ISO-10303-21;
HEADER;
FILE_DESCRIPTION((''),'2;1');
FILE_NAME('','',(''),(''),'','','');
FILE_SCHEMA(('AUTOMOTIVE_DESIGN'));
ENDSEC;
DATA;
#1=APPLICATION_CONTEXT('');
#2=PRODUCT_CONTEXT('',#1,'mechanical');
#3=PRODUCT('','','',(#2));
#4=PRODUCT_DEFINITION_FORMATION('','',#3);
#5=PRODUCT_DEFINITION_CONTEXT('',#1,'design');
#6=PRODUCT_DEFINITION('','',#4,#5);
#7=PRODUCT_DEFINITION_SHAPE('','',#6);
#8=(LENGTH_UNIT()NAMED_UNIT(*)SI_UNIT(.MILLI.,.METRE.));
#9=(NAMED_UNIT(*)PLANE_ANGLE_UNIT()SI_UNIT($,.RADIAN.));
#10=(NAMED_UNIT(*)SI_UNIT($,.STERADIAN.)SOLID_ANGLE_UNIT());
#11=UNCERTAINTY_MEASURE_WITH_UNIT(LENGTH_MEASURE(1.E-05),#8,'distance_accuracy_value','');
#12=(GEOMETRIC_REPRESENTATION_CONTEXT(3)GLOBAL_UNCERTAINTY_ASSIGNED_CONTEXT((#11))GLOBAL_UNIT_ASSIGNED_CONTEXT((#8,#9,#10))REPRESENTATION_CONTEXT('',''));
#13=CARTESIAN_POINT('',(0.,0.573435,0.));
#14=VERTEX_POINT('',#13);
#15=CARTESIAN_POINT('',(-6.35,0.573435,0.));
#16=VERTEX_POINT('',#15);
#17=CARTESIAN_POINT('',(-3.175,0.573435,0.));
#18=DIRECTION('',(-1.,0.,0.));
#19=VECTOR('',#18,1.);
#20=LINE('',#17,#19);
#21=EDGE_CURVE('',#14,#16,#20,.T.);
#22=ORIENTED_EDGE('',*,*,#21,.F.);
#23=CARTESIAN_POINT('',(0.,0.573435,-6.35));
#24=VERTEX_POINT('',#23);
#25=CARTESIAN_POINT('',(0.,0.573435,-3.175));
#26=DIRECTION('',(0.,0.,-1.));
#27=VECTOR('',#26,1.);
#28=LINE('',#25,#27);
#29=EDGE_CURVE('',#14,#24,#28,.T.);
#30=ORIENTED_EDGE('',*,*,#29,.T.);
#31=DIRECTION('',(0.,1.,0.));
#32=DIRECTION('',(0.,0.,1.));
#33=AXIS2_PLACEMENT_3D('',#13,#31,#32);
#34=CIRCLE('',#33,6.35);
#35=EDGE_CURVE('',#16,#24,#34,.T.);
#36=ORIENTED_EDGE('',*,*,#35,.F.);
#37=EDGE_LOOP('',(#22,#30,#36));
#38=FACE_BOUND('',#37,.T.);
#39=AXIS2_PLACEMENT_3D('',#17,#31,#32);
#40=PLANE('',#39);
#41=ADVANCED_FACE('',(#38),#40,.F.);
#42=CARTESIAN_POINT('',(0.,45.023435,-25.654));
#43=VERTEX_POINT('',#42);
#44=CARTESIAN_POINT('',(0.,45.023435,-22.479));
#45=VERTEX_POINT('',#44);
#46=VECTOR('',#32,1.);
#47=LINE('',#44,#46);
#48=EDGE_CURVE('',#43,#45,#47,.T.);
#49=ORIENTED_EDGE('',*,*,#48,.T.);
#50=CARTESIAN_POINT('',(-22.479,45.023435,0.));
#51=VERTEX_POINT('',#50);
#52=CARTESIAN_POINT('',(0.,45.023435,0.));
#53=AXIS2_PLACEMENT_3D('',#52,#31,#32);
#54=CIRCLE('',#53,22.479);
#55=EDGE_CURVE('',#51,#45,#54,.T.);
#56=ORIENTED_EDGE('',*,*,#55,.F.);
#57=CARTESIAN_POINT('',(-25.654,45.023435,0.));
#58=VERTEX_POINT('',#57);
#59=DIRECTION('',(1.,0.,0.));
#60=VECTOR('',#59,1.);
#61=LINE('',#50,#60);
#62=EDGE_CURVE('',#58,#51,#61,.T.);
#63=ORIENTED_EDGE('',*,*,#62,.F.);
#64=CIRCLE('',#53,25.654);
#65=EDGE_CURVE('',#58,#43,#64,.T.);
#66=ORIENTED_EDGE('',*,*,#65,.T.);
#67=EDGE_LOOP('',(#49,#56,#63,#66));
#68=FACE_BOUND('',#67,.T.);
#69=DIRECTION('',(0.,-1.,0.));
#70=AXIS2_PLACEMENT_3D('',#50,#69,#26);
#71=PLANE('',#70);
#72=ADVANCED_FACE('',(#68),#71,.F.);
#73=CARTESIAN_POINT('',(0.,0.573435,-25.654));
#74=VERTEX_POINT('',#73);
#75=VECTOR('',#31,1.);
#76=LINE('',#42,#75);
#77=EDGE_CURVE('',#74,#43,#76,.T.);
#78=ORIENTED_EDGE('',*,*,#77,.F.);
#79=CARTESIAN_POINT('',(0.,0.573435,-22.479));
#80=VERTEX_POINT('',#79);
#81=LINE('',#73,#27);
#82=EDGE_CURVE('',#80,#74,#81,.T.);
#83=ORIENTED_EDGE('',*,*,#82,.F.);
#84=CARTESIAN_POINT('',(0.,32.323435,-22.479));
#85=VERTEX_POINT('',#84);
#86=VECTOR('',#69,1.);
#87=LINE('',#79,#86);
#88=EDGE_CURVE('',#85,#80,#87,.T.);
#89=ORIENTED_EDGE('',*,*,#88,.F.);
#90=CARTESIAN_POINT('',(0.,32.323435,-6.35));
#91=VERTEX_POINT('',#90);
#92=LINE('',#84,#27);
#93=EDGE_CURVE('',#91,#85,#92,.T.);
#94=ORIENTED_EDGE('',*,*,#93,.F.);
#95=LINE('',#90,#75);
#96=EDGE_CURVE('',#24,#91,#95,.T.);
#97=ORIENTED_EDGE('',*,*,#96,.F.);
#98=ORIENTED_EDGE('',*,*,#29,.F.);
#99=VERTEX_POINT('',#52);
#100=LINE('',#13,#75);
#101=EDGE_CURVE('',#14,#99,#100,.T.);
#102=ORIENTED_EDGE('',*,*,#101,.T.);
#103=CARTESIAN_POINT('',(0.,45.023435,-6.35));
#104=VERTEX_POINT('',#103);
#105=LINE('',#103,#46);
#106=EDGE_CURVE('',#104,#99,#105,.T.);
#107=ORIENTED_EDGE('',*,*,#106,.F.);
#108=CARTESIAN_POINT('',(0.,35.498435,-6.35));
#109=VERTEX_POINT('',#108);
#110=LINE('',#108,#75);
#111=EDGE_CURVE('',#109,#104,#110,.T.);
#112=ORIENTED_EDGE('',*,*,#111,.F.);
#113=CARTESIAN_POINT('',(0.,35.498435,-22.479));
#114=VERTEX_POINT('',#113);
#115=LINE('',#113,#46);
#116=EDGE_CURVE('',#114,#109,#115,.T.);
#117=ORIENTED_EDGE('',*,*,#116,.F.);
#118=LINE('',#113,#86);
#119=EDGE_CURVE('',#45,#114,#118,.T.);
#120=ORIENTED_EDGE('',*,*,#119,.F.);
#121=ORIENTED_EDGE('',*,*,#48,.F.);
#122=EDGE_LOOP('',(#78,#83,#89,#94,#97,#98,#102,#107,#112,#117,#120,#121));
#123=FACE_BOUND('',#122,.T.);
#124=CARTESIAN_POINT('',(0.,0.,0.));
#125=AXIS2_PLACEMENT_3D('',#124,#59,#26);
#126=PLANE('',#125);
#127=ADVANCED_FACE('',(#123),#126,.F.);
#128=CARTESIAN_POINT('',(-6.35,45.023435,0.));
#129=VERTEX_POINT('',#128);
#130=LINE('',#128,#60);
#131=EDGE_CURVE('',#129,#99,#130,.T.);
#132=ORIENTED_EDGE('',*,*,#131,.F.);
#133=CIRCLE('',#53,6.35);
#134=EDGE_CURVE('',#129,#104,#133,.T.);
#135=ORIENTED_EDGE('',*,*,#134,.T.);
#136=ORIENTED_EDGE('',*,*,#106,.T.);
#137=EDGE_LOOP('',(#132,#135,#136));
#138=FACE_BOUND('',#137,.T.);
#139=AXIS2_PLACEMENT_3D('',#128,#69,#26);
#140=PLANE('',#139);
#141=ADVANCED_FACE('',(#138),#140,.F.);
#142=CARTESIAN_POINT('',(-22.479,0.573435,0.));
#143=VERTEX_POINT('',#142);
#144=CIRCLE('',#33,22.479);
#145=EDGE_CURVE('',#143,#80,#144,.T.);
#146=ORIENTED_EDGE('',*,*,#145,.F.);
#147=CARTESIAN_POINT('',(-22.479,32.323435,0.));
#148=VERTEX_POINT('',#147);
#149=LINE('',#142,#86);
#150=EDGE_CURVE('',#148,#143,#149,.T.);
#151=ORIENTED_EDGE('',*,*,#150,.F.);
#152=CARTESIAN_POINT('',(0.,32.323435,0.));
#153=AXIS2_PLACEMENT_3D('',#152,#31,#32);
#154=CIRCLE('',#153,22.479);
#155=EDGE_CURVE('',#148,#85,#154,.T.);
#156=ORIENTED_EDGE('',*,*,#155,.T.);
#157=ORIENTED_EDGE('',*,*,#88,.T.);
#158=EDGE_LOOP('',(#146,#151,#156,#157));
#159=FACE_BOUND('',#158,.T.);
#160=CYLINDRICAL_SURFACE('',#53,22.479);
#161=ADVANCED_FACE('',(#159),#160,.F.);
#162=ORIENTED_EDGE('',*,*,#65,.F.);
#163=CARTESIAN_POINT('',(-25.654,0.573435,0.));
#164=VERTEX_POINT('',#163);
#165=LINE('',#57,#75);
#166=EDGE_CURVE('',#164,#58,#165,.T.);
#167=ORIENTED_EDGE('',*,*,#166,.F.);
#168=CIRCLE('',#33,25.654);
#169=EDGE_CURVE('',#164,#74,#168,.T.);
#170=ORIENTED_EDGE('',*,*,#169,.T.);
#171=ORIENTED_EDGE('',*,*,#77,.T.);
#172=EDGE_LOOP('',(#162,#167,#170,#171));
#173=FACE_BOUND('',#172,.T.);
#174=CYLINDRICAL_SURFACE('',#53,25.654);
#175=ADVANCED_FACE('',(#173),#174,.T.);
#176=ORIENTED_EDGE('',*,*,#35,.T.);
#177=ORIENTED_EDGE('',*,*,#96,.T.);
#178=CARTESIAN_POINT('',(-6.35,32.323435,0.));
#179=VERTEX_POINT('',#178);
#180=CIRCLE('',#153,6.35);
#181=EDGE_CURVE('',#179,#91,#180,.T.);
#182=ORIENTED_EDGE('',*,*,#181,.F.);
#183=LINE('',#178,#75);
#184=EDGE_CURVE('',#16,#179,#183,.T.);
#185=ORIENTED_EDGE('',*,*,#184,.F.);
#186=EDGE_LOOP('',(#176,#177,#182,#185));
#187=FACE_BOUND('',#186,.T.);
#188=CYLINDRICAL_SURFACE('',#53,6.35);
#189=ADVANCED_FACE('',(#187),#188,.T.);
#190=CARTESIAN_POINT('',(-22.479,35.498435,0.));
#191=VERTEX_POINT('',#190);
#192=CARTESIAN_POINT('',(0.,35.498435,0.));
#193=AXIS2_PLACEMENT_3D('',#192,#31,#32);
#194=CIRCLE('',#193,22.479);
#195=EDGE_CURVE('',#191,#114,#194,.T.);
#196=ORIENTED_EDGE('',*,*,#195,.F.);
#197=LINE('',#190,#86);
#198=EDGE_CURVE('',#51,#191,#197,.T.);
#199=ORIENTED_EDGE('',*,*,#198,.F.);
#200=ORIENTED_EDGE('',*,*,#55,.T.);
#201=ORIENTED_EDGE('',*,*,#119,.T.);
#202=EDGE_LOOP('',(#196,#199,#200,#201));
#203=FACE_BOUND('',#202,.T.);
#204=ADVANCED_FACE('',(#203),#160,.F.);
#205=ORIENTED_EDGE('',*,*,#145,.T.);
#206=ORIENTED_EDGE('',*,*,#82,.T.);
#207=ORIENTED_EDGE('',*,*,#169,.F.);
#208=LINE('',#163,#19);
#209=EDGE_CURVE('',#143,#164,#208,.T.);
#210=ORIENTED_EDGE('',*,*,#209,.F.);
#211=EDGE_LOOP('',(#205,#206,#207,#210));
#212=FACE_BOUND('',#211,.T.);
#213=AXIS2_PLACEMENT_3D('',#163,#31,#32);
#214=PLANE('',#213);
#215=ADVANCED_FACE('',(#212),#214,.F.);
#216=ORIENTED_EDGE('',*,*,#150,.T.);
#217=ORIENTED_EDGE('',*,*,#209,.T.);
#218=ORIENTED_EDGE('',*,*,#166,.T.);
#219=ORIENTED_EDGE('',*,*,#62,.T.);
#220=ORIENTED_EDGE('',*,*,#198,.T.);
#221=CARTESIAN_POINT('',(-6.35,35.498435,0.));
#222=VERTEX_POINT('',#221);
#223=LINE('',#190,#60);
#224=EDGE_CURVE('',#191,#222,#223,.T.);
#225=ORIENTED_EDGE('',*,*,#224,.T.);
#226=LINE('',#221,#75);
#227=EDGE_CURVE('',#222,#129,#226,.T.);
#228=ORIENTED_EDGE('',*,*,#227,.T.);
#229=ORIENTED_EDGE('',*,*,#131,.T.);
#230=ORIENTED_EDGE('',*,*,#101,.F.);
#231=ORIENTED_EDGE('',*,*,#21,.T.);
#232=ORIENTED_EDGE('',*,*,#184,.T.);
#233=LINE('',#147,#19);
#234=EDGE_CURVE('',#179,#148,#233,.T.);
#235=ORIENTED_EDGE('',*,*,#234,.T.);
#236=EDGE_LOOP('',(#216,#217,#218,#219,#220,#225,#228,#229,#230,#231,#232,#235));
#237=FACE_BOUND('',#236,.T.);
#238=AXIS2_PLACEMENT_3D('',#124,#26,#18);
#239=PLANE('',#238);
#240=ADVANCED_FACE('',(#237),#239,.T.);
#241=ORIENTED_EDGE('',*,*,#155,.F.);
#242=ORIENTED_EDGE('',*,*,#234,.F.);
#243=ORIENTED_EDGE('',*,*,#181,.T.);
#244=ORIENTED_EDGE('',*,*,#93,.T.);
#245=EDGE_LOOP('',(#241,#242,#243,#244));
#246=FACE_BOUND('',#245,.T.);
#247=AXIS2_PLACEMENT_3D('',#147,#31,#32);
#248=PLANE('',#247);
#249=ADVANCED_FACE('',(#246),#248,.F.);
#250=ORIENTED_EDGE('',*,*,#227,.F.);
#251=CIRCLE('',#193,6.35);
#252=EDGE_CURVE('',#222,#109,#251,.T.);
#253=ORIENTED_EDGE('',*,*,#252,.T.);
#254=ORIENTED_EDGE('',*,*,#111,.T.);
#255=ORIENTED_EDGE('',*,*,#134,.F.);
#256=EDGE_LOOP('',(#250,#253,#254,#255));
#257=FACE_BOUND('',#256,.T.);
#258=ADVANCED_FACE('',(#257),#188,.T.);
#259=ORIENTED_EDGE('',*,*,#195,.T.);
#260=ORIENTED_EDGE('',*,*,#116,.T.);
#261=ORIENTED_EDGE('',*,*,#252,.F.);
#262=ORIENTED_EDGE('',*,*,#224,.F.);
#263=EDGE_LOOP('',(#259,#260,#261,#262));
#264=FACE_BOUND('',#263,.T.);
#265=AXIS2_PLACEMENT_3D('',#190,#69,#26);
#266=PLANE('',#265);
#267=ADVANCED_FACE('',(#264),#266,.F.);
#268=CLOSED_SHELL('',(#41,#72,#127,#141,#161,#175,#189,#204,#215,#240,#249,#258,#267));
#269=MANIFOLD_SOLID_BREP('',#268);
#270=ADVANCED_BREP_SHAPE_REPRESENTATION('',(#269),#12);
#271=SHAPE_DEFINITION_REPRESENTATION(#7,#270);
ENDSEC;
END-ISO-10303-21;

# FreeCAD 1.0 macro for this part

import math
import FreeCAD as App
import Part
import Sketcher

V = App.Vector
Q = App.Units.Quantity

doc = App.newDocument("Part")
params = doc.addObject("Spreadsheet::Sheet", "Params")
for row, (alias, value) in enumerate([
    ("sketch1_width", "1.75 in"),
    ("sketch1_width2", "1.25 in"),
    ("sketch1_width3", "0.375 in"),
    ("sketch1_height", "0.635 in"),
    ("sketch1_height2", "0.125 in"),
    ("revolution_angle", "270 deg"),
    ("sketch2_radius", "0.25 in"),
    ("pad1_length", "1.75 in"),
], start=1):
    params.set(f"A{row}", alias)
    params.set(f"B{row}", "=" + value)
    params.setAlias(f"B{row}", alias)

body = doc.addObject("PartDesign::Body", "Body")

sketch1 = doc.addObject("Sketcher::SketchObject", "Sketch")
body.addObject(sketch1)
sketch1.AttachmentSupport = (doc.YZ_Plane, [""])
sketch1.MapMode = "FlatFace"
sketch1.addGeometry(Part.LineSegment(V(45, -22.5, 0), V(35.5, -22.5, 0)), False)
sketch1.addGeometry(Part.LineSegment(V(35.5, -22.5, 0), V(35.5, -6.3, 0)), False)
sketch1.addGeometry(Part.LineSegment(V(35.5, -6.3, 0), V(45, -6.3, 0)), False)
sketch1.addGeometry(Part.LineSegment(V(45, -6.3, 0), V(45, -3.2, 0)), False)
sketch1.addGeometry(Part.LineSegment(V(45, -3.2, 0), V(0.6, -3.2, 0)), False)
sketch1.addGeometry(Part.LineSegment(V(0.6, -3.2, 0), V(0.6, -6.3, 0)), False)
sketch1.addGeometry(Part.LineSegment(V(0.6, -6.3, 0), V(32.3, -6.3, 0)), False)
sketch1.addGeometry(Part.LineSegment(V(32.3, -6.3, 0), V(32.3, -22.5, 0)), False)
sketch1.addGeometry(Part.LineSegment(V(32.3, -22.5, 0), V(0.6, -22.5, 0)), False)
sketch1.addGeometry(Part.LineSegment(V(0.6, -22.5, 0), V(0.6, -25.7, 0)), False)
sketch1.addGeometry(Part.LineSegment(V(0.6, -25.7, 0), V(45, -25.7, 0)), False)
sketch1.addGeometry(Part.LineSegment(V(45, -25.7, 0), V(45, -22.5, 0)), False)
sketch1.addConstraint(Sketcher.Constraint("Coincident", 0, 2, 1, 1))
sketch1.addConstraint(Sketcher.Constraint("Coincident", 1, 2, 2, 1))
sketch1.addConstraint(Sketcher.Constraint("Coincident", 2, 2, 3, 1))
sketch1.addConstraint(Sketcher.Constraint("Coincident", 3, 2, 4, 1))
sketch1.addConstraint(Sketcher.Constraint("Coincident", 4, 2, 5, 1))
sketch1.addConstraint(Sketcher.Constraint("Coincident", 5, 2, 6, 1))
sketch1.addConstraint(Sketcher.Constraint("Coincident", 6, 2, 7, 1))
sketch1.addConstraint(Sketcher.Constraint("Coincident", 7, 2, 8, 1))
sketch1.addConstraint(Sketcher.Constraint("Coincident", 8, 2, 9, 1))
sketch1.addConstraint(Sketcher.Constraint("Coincident", 9, 2, 10, 1))
sketch1.addConstraint(Sketcher.Constraint("Coincident", 10, 2, 11, 1))
sketch1.addConstraint(Sketcher.Constraint("Coincident", 11, 2, 0, 1))
sketch1.addConstraint(Sketcher.Constraint("Horizontal", 0))
sketch1.addConstraint(Sketcher.Constraint("Vertical", 1))
sketch1.addConstraint(Sketcher.Constraint("Horizontal", 2))
sketch1.addConstraint(Sketcher.Constraint("Vertical", 3))
sketch1.addConstraint(Sketcher.Constraint("Horizontal", 4))
sketch1.addConstraint(Sketcher.Constraint("Vertical", 5))
sketch1.addConstraint(Sketcher.Constraint("Horizontal", 6))
sketch1.addConstraint(Sketcher.Constraint("Vertical", 7))
sketch1.addConstraint(Sketcher.Constraint("Horizontal", 8))
sketch1.addConstraint(Sketcher.Constraint("Vertical", 9))
sketch1.addConstraint(Sketcher.Constraint("Horizontal", 10))
sketch1.addConstraint(Sketcher.Constraint("Vertical", 11))
sketch1.addConstraint(Sketcher.Constraint("Horizontal", 2, 2, 5, 2))
sketch1.addConstraint(Sketcher.Constraint("Horizontal", 0, 2, 7, 2))
sketch1.addConstraint(Sketcher.Constraint("Vertical", 5, 2, 8, 2))
sketch1.addConstraint(Sketcher.Constraint("Vertical", 3, 2, 10, 2))
sketch1.addConstraint(Sketcher.Constraint("Equal", 5, 9))
sketch1.addConstraint(Sketcher.Constraint("DistanceX", 4, 2, 4, 1, Q("1.75 in")))
sketch1.addConstraint(Sketcher.Constraint("DistanceX", 6, 1, 6, 2, Q("1.25 in")))
sketch1.addConstraint(Sketcher.Constraint("DistanceX", 0, 2, 0, 1, Q("0.375 in")))
sketch1.addConstraint(Sketcher.Constraint("DistanceY", 1, 1, 1, 2, Q("0.635 in")))
sketch1.addConstraint(Sketcher.Constraint("DistanceY", 3, 1, 3, 2, Q("0.125 in")))
sketch1.addConstraint(Sketcher.Constraint("DistanceY", 1, 2, -1, 1, Q("0.25 in")))
sketch1.addConstraint(Sketcher.Constraint("DistanceX", -1, 1, 0, 2, 35.498435))
sketch1.setExpression("Constraints[29]", "Params.sketch1_width")
sketch1.setExpression("Constraints[30]", "Params.sketch1_width2")
sketch1.setExpression("Constraints[31]", "Params.sketch1_width3")
sketch1.setExpression("Constraints[32]", "Params.sketch1_height")
sketch1.setExpression("Constraints[33]", "Params.sketch1_height2")
revolution = doc.addObject("PartDesign::Revolution", "Revolution")
body.addObject(revolution)
revolution.Profile = sketch1
revolution.ReferenceAxis = (sketch1, ["H_Axis"])
revolution.setExpression("Angle", "Params.revolution_angle")
revolution.Reversed = True

sketch2 = doc.addObject("Sketcher::SketchObject", "Sketch001")
body.addObject(sketch2)
sketch2.AttachmentSupport = (doc.XZ_Plane, [""])
sketch2.MapMode = "FlatFace"
sketch2.AttachmentOffset = App.Placement(V(0, 0, -45.023435), App.Rotation())
sketch2.addGeometry(Part.LineSegment(V(0, -6, 0), V(0, 0, 0)), False)
sketch2.addGeometry(Part.LineSegment(V(0, 0, 0), V(-6, 0, 0)), False)
sketch2.addGeometry(Part.ArcOfCircle(Part.Circle(V(0, 0, 0), V(0, 0, 1), 6), math.radians(-90), math.radians(180)), False)
sketch2.addConstraint(Sketcher.Constraint("Coincident", 0, 2, 1, 1))
sketch2.addConstraint(Sketcher.Constraint("Coincident", 1, 2, 2, 2))
sketch2.addConstraint(Sketcher.Constraint("Coincident", 2, 1, 0, 1))
sketch2.addConstraint(Sketcher.Constraint("Vertical", 0))
sketch2.addConstraint(Sketcher.Constraint("Horizontal", 1))
sketch2.addConstraint(Sketcher.Constraint("Coincident", 2, 3, -1, 1))
sketch2.addConstraint(Sketcher.Constraint("Coincident", 0, 2, -1, 1))
sketch2.addConstraint(Sketcher.Constraint("Radius", 2, Q("0.25 in")))
sketch2.setExpression("Constraints[7]", "Params.sketch2_radius")
pad1 = doc.addObject("PartDesign::Pad", "Pad")
body.addObject(pad1)
pad1.Profile = sketch2
pad1.setExpression("Length", "Params.pad1_length")

doc.recompute()
